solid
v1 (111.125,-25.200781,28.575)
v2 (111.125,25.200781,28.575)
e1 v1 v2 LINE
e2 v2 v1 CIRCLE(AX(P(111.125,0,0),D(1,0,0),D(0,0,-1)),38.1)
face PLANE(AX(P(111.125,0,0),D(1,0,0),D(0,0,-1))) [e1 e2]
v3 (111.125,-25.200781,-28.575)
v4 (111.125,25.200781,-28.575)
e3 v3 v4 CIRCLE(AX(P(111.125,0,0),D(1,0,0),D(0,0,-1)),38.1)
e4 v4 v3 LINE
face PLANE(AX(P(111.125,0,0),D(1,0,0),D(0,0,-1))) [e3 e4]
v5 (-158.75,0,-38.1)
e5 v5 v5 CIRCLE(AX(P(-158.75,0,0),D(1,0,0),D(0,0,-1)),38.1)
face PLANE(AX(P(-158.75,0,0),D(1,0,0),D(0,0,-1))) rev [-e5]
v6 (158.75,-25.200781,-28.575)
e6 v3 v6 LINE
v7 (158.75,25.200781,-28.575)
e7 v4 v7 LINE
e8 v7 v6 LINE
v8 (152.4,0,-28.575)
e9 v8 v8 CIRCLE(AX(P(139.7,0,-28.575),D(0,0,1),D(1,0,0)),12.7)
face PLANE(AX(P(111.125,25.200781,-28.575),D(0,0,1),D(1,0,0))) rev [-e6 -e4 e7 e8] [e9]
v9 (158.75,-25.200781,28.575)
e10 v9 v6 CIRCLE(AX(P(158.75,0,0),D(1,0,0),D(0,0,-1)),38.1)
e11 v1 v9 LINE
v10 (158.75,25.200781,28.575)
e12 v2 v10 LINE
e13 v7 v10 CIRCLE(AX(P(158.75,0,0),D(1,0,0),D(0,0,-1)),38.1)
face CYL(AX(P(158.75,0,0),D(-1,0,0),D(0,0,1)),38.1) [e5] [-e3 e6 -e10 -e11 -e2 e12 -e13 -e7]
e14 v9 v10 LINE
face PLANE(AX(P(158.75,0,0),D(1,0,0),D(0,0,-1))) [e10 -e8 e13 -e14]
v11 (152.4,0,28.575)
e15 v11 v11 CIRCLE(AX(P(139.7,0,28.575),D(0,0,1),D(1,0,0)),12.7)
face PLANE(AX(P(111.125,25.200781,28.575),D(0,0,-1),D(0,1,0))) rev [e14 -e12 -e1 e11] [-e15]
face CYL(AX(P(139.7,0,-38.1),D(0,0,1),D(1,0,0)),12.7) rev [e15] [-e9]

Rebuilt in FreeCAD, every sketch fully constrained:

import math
import FreeCAD as App
import Part
import Sketcher

V = App.Vector
Q = App.Units.Quantity

doc = App.newDocument("Part")
body = doc.addObject("PartDesign::Body", "Body")

# Sketch on YZ plane
sketch1 = body.newObject("Sketcher::SketchObject", "Sketch")
sketch1.AttachmentSupport = (doc.getObject("YZ_Plane"), [""])
sketch1.MapMode = "FlatFace"
sketch1.addGeometry(Part.Circle(V(0, 0, 0), V(0, 0, 1), 38.1), False)
sketch1.addConstraint([
    Sketcher.Constraint("Coincident", 0, 3, -1, 1),
    Sketcher.Constraint("Diameter", 0, Q("3 in")),
])
pad1 = body.newObject("PartDesign::Pad", "Pad")
pad1.Profile = sketch1
pad1.Length = Q("12.5 in")
pad1.Midplane = True

# Sketch on YZ plane
sketch2 = body.newObject("Sketcher::SketchObject", "Sketch001")
sketch2.AttachmentSupport = (doc.getObject("YZ_Plane"), [""])
sketch2.MapMode = "FlatFace"
sketch2.AttachmentOffset = App.Placement(V(0, 0, 6.25 * 25.4), App.Rotation())
sketch2.addGeometry([
    Part.LineSegment(V(-25.200781, 28.575, 0), V(25.200781, 28.575, 0)),
    Part.ArcOfCircle(Part.Circle(V(0, 0, 0), V(0, 0, 1), 38.1), math.radians(48.590378), math.radians(131.409622)),
    Part.LineSegment(V(25.200781, -28.575, 0), V(-25.200781, -28.575, 0)),
    Part.ArcOfCircle(Part.Circle(V(0, 0, 0), V(0, 0, 1), 38.1), math.radians(-131.409622), math.radians(-48.590378)),
], False)
sketch2.addConstraint([
    Sketcher.Constraint("Coincident", 0, 1, 1, 2),
    Sketcher.Constraint("Coincident", 1, 1, 0, 2),
    Sketcher.Constraint("Coincident", 2, 1, 3, 2),
    Sketcher.Constraint("Coincident", 3, 1, 2, 2),
    Sketcher.Constraint("Horizontal", 0),
    Sketcher.Constraint("Horizontal", 2),
    Sketcher.Constraint("Coincident", 1, 3, -1, 1),
    Sketcher.Constraint("Coincident", 3, 3, -1, 1),
    Sketcher.Constraint("Equal", 1, 3),
    Sketcher.Constraint("Vertical", 1, 1, 2, 1),
    Sketcher.Constraint("Radius", 1, Q("1.5 in")),
    Sketcher.Constraint("DistanceY", 2, 1, 1, 1, Q("2.25 in")),
])
pocket1 = body.newObject("PartDesign::Pocket", "Pocket")
pocket1.Profile = sketch2
pocket1.Length = Q("1.875 in")

# Sketch on XY plane
sketch3 = body.newObject("Sketcher::SketchObject", "Sketch002")
sketch3.AttachmentSupport = (doc.getObject("XY_Plane"), [""])
sketch3.MapMode = "FlatFace"
sketch3.AttachmentOffset = App.Placement(V(0, 0, 1.125 * 25.4), App.Rotation())
sketch3.addGeometry(Part.Circle(V(139.7, 0, 0), V(0, 0, 1), 12.7), False)
sketch3.addConstraint([
    Sketcher.Constraint("PointOnObject", 0, 3, -1),
    Sketcher.Constraint("Diameter", 0, Q("1 in")),
    Sketcher.Constraint("DistanceX", -1, 1, 0, 3, Q("5.5 in")),
])
pocket2 = body.newObject("PartDesign::Pocket", "Pocket001")
pocket2.Profile = sketch3
pocket2.Type = "ThroughAll"

doc.recompute()
